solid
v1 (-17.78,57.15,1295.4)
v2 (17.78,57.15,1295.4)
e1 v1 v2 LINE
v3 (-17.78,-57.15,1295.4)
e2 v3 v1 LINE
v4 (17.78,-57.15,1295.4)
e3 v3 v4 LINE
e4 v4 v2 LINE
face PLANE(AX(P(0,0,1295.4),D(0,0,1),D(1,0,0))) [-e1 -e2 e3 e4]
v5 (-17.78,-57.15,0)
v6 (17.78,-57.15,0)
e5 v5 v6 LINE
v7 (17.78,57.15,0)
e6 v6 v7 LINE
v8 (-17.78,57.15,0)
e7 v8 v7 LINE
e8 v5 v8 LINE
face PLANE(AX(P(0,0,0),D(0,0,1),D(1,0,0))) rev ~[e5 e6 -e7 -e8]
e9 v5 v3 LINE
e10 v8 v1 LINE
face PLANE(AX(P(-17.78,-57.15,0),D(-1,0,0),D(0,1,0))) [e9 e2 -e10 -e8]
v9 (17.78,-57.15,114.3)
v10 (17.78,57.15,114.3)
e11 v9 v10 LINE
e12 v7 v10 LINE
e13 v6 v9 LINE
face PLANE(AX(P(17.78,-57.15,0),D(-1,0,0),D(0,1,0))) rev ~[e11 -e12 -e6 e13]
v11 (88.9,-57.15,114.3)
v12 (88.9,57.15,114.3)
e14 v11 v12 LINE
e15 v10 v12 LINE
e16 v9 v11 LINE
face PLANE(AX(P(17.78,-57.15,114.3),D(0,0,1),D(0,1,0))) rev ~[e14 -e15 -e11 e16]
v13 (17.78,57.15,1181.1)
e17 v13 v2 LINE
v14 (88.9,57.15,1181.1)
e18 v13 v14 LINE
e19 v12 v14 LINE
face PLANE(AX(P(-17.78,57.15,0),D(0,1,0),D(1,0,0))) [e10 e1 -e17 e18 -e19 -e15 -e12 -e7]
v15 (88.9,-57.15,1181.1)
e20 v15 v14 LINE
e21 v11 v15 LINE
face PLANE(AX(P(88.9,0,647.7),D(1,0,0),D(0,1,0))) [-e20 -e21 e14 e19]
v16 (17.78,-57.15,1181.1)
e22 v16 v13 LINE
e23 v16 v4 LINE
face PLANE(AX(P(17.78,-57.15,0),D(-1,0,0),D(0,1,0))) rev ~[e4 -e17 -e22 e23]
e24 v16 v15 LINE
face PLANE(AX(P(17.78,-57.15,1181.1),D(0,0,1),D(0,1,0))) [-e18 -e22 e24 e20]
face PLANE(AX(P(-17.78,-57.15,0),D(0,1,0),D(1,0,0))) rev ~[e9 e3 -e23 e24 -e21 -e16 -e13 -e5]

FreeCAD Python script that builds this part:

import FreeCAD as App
import Part
import Sketcher
Q = App.Units.Quantity


def add_polygon(sketch, points):
    """Adds a closed chain of lines whose ends are joined by coincident constraints."""
    first, n = sketch.GeometryCount, len(points)
    for a, b in zip(points, points[1:] + points[:1]):
        sketch.addGeometry(Part.LineSegment(App.Vector(*a, 0), App.Vector(*b, 0)), False)
    for i in range(n):
        sketch.addConstraint(Sketcher.Constraint("Coincident", first + i, 2, first + (i + 1) % n, 1))

doc = App.newDocument("Part")
body = doc.addObject("PartDesign::Body", "Body")

# Sketch on XY plane
sketch1 = doc.addObject("Sketcher::SketchObject", "Sketch")
body.addObject(sketch1)
sketch1.AttachmentSupport = (doc.XY_Plane, [""])
sketch1.MapMode = "FlatFace"
add_polygon(sketch1, [(-18, 57), (-18, -57), (18, -57), (18, 57)])  # lines 0-3
sketch1.addConstraint([
    Sketcher.Constraint("Vertical", 0),
    Sketcher.Constraint("Horizontal", 1),
    Sketcher.Constraint("Vertical", 2),
    Sketcher.Constraint("Horizontal", 3),
    Sketcher.Constraint("Symmetric", 0, 2, 2, 2, -1, 1),
    Sketcher.Constraint("DistanceX", 1, 1, 1, 2, Q("1.4 in")),
    Sketcher.Constraint("DistanceY", 0, 2, 0, 1, Q("4.5 in")),
])
pad1 = doc.addObject("PartDesign::Pad", "Pad")
body.addObject(pad1)
pad1.Profile = sketch1
pad1.Length = Q("51 in")

# Sketch on YZ plane
sketch2 = doc.addObject("Sketcher::SketchObject", "Sketch001")
body.addObject(sketch2)
sketch2.AttachmentSupport = (doc.YZ_Plane, [""])
sketch2.MapMode = "FlatFace"
sketch2.AttachmentOffset = App.Placement(App.Vector(0, 0, 0.7 * 25.4), App.Rotation())
add_polygon(sketch2, [(-57, 1181), (-57, 114), (57, 114), (57, 1181)])  # lines 0-3
sketch2.addConstraint([
    Sketcher.Constraint("Vertical", 0),
    Sketcher.Constraint("Horizontal", 1),
    Sketcher.Constraint("Vertical", 2),
    Sketcher.Constraint("Horizontal", 3),
    Sketcher.Constraint("DistanceY", 0, 2, 0, 1, Q("42 in")),
    Sketcher.Constraint("DistanceX", 1, 1, 1, 2, Q("4.5 in")),
    Sketcher.Constraint("DistanceY", -1, 1, 0, 2, Q("4.5 in")),
    Sketcher.Constraint("DistanceX", 0, 2, -1, 1, Q("2.25 in")),
])
pad2 = doc.addObject("PartDesign::Pad", "Pad001")
body.addObject(pad2)
pad2.Profile = sketch2
pad2.Length = Q("2.8 in")

doc.recompute()
